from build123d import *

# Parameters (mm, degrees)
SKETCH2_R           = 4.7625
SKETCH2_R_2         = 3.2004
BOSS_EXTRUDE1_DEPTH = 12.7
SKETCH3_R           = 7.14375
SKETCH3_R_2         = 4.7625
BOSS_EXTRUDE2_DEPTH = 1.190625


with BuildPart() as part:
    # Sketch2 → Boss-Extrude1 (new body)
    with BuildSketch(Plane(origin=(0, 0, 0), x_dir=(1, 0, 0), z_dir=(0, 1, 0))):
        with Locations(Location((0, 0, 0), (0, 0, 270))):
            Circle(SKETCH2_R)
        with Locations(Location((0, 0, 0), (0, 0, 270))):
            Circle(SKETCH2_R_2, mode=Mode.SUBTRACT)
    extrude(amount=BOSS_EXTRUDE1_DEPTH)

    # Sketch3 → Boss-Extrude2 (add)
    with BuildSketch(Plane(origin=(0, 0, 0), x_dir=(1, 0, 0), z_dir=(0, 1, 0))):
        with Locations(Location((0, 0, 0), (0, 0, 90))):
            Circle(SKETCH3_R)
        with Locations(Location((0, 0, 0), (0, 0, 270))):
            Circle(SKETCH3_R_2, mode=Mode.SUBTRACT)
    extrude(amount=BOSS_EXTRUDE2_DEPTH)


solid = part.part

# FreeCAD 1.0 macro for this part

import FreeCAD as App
import Part
import Sketcher
from FreeCAD import Vector
Q = App.Units.Quantity

doc = App.newDocument("Part")
body = doc.addObject("PartDesign::Body", "Body")

# Sketch on XZ plane
sketch1 = body.newObject("Sketcher::SketchObject", "Sketch")
sketch1.AttachmentSupport = (doc.getObject("XZ_Plane"), [""])
sketch1.MapMode = "FlatFace"
sketch1.addGeometry(Part.Circle(Vector(0, 0, 0), Vector(0, 0, 1), 4.8), False)
sketch1.addGeometry(Part.Circle(Vector(0, 0, 0), Vector(0, 0, 1), 3.2), False)
sketch1.addConstraint(Sketcher.Constraint("Coincident", 0, 3, -1, 1))
sketch1.addConstraint(Sketcher.Constraint("Coincident", 1, 3, -1, 1))
sketch1.addConstraint(Sketcher.Constraint("Diameter", 0, Q("0.375 in")))
sketch1.addConstraint(Sketcher.Constraint("Diameter", 1, Q("0.252 in")))
pad1 = body.newObject("PartDesign::Pad", "Pad")
pad1.Profile = sketch1
pad1.Length = Q("0.5 in")
pad1.Reversed = True

# Sketch on XZ plane
sketch2 = body.newObject("Sketcher::SketchObject", "Sketch001")
sketch2.AttachmentSupport = (doc.getObject("XZ_Plane"), [""])
sketch2.MapMode = "FlatFace"
sketch2.addGeometry(Part.Circle(Vector(0, 0, 0), Vector(0, 0, 1), 7.1), False)
sketch2.addGeometry(Part.Circle(Vector(0, 0, 0), Vector(0, 0, 1), 4.8), False)
sketch2.addConstraint(Sketcher.Constraint("Coincident", 0, 3, -1, 1))
sketch2.addConstraint(Sketcher.Constraint("Coincident", 1, 3, -1, 1))
sketch2.addConstraint(Sketcher.Constraint("Diameter", 0, Q("0.5625 in")))
sketch2.addConstraint(Sketcher.Constraint("Diameter", 1, Q("0.375 in")))
pad2 = body.newObject("PartDesign::Pad", "Pad001")
pad2.Profile = sketch2
pad2.Length = Q("0.046875 in")
pad2.Reversed = True

doc.recompute()
